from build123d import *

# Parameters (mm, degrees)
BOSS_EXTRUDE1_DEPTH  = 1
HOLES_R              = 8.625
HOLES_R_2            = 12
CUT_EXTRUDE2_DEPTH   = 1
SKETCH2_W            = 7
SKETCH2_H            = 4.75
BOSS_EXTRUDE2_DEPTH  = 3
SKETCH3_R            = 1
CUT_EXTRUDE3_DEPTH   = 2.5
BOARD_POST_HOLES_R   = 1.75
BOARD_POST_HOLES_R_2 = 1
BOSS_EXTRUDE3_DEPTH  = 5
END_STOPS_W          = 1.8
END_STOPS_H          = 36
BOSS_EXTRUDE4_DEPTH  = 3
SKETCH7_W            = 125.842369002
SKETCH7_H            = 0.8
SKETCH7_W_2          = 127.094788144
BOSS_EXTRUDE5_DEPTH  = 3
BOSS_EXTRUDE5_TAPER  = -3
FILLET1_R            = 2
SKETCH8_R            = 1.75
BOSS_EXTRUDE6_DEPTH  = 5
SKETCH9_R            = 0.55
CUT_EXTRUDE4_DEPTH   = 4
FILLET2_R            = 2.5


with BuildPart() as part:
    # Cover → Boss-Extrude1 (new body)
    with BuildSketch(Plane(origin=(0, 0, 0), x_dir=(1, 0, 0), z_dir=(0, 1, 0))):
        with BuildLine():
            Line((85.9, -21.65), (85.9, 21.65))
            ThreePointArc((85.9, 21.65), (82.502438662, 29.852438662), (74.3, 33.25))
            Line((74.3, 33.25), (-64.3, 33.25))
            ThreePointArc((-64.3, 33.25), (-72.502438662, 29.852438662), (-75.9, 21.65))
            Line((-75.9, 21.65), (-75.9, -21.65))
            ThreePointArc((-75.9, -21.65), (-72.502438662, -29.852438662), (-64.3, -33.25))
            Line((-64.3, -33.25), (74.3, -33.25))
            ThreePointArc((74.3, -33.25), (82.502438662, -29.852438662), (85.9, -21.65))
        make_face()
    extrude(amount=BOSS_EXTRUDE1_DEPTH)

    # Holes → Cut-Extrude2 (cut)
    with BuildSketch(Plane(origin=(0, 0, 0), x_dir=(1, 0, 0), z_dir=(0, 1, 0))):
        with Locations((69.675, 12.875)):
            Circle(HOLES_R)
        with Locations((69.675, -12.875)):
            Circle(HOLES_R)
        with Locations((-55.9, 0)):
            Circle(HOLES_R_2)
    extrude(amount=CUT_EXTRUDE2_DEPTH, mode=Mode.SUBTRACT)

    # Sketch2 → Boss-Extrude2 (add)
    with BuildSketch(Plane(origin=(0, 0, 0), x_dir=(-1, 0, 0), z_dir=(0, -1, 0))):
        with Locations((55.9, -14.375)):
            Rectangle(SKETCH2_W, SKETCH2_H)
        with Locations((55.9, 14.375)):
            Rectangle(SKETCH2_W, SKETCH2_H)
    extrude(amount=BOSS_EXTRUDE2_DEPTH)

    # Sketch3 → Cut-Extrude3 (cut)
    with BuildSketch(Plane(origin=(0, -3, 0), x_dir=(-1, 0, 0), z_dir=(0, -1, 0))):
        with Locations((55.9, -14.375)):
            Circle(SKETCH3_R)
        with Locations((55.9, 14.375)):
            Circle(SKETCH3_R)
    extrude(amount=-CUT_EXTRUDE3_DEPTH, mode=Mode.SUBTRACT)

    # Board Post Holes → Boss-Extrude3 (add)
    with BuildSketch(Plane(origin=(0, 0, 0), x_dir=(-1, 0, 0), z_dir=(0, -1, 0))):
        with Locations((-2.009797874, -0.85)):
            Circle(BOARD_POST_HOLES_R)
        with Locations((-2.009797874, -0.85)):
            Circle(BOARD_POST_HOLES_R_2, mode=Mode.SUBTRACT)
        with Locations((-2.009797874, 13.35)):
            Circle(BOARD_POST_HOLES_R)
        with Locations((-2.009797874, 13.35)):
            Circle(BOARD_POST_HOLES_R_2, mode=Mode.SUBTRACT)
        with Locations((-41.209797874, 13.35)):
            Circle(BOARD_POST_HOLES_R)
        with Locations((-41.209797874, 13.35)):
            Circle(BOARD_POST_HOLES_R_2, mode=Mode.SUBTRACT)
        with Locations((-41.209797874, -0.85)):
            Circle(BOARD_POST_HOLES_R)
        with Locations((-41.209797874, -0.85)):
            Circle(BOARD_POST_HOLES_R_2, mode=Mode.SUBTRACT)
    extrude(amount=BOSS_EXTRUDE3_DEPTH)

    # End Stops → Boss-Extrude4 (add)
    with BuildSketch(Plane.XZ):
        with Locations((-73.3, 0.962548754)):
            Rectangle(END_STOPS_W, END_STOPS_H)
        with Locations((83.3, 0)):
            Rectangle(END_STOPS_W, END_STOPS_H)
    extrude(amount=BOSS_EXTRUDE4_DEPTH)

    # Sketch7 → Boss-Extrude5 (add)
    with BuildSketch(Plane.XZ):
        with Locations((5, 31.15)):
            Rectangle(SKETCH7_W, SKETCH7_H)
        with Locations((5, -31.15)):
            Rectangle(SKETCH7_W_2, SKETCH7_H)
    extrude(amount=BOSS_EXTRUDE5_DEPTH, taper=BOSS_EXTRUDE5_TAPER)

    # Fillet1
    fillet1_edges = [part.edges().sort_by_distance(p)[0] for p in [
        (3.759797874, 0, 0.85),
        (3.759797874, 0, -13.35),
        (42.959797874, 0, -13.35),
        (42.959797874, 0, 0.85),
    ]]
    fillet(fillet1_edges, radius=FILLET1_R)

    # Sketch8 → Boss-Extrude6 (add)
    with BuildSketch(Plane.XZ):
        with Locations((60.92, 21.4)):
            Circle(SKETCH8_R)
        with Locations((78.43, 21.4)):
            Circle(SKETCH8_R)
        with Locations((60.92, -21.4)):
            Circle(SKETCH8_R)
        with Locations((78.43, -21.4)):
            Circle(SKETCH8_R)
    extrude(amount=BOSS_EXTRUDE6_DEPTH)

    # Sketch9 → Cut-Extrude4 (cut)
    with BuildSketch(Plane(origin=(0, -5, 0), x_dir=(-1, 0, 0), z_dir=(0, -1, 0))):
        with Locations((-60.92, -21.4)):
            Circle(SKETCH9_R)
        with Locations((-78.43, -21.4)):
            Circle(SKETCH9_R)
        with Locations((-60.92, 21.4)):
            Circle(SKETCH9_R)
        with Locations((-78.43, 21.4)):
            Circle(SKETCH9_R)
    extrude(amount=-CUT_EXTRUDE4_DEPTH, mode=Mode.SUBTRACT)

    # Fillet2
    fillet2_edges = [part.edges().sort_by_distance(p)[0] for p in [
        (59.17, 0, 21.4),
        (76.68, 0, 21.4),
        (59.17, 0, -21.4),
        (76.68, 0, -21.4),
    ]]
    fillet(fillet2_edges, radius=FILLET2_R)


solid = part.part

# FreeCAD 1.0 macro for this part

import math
import FreeCAD as App
import Part
import Sketcher
from FreeCAD import Vector


def edges_at(feature, points):
    """Names of the edges that pass closest to the given points."""
    edges = feature.Shape.Edges
    near = lambda p: min(range(len(edges)), key=lambda i: edges[i].distToShape(Part.Vertex(*p))[0])
    return sorted({f"Edge{near(p) + 1}" for p in points})

doc = App.newDocument("Part")
body = doc.addObject("PartDesign::Body", "Body")

# Sketch on XZ plane
sketch1 = body.newObject("Sketcher::SketchObject", "Sketch")
sketch1.AttachmentSupport = (doc.getObject("XZ_Plane"), [""])
sketch1.MapMode = "FlatFace"
sketch1.addGeometry([
    Part.LineSegment(Vector(86, 22, 0), Vector(86, -22, 0)),  # 0
    Part.ArcOfCircle(Part.Circle(Vector(74, -22, 0), Vector(0, 0, 1), 12), math.radians(-90), math.radians(0)),  # 1
    Part.LineSegment(Vector(74, -33, 0), Vector(-64, -33, 0)),  # 2
    Part.ArcOfCircle(Part.Circle(Vector(-64, -22, 0), Vector(0, 0, 1), 12), math.radians(180), math.radians(270)),  # 3
    Part.LineSegment(Vector(-76, -22, 0), Vector(-76, 22, 0)),  # 4
    Part.ArcOfCircle(Part.Circle(Vector(-64, 22, 0), Vector(0, 0, 1), 12), math.radians(90), math.radians(180)),  # 5
    Part.LineSegment(Vector(-64, 33, 0), Vector(74, 33, 0)),  # 6
    Part.ArcOfCircle(Part.Circle(Vector(74, 22, 0), Vector(0, 0, 1), 12), math.radians(0), math.radians(90)),  # 7
], False)
sketch1.addConstraint([
    Sketcher.Constraint("Tangent", 0, 2, 1, 2),
    Sketcher.Constraint("Tangent", 1, 1, 2, 1),
    Sketcher.Constraint("Tangent", 2, 2, 3, 2),
    Sketcher.Constraint("Tangent", 3, 1, 4, 1),
    Sketcher.Constraint("Tangent", 4, 2, 5, 2),
    Sketcher.Constraint("Tangent", 5, 1, 6, 1),
    Sketcher.Constraint("Tangent", 6, 2, 7, 2),
    Sketcher.Constraint("Tangent", 7, 1, 0, 1),
    Sketcher.Constraint("Vertical", 0),
    Sketcher.Constraint("Horizontal", 2),
    Sketcher.Constraint("Vertical", 4),
    Sketcher.Constraint("Horizontal", 6),
    Sketcher.Constraint("Equal", 1, 3),
    Sketcher.Constraint("Equal", 3, 5),
    Sketcher.Constraint("Equal", 5, 7),
    Sketcher.Constraint("Radius", 1, 11.6),
    Sketcher.Constraint("DistanceX", 2, 2, 2, 1, 138.6),
    Sketcher.Constraint("DistanceY", 0, 2, 0, 1, 43.3),
    Sketcher.Constraint("DistanceX", -1, 1, 1, 3, 74.3),
    Sketcher.Constraint("DistanceY", 1, 3, -1, 1, 21.65),
])
pad1 = body.newObject("PartDesign::Pad", "Pad")
pad1.Profile = sketch1
pad1.Length = 1
pad1.Reversed = True

# Sketch on XZ plane
sketch2 = body.newObject("Sketcher::SketchObject", "Sketch001")
sketch2.AttachmentSupport = (doc.getObject("XZ_Plane"), [""])
sketch2.MapMode = "FlatFace"
sketch2.addGeometry([
    Part.Circle(Vector(70, -13, 0), Vector(0, 0, 1), 9),
    Part.Circle(Vector(70, 13, 0), Vector(0, 0, 1), 9),
    Part.Circle(Vector(-56, 0, 0), Vector(0, 0, 1), 12),
], False)
sketch2.addConstraint([
    Sketcher.Constraint("Equal", 0, 1),
    Sketcher.Constraint("Symmetric", 0, 3, 1, 3, -1),
    Sketcher.Constraint("PointOnObject", 2, 3, -1),
    Sketcher.Constraint("Diameter", 2, 24.0),
    Sketcher.Constraint("Diameter", 0, 17.25),
    Sketcher.Constraint("DistanceX", 2, 3, -1, 1, 55.9),
    Sketcher.Constraint("DistanceY", 0, 3, 1, 3, 25.75),
    Sketcher.Constraint("DistanceX", -1, 1, 0, 3, 69.675),
])
pocket1 = body.newObject("PartDesign::Pocket", "Pocket")
pocket1.Profile = sketch2
pocket1.Length = 1

# Sketch on XZ plane
sketch3 = body.newObject("Sketcher::SketchObject", "Sketch002")
sketch3.AttachmentSupport = (doc.getObject("XZ_Plane"), [""])
sketch3.MapMode = "FlatFace"
sketch3.addGeometry([
    Part.LineSegment(Vector(-52.4, 12, 0), Vector(-52.4, 16.8, 0)),  # 0
    Part.LineSegment(Vector(-52.4, 16.8, 0), Vector(-59.4, 16.8, 0)),  # 1
    Part.LineSegment(Vector(-59.4, 16.8, 0), Vector(-59.4, 12, 0)),  # 2
    Part.LineSegment(Vector(-59.4, 12, 0), Vector(-52.4, 12, 0)),  # 3
    Part.LineSegment(Vector(-52.4, -16.8, 0), Vector(-52.4, -12, 0)),  # 4
    Part.LineSegment(Vector(-52.4, -12, 0), Vector(-59.4, -12, 0)),  # 5
    Part.LineSegment(Vector(-59.4, -12, 0), Vector(-59.4, -16.8, 0)),  # 6
    Part.LineSegment(Vector(-59.4, -16.8, 0), Vector(-52.4, -16.8, 0)),  # 7
], False)
sketch3.addConstraint([
    Sketcher.Constraint("Coincident", 0, 2, 1, 1),
    Sketcher.Constraint("Coincident", 1, 2, 2, 1),
    Sketcher.Constraint("Coincident", 2, 2, 3, 1),
    Sketcher.Constraint("Coincident", 3, 2, 0, 1),
    Sketcher.Constraint("Coincident", 4, 2, 5, 1),
    Sketcher.Constraint("Coincident", 5, 2, 6, 1),
    Sketcher.Constraint("Coincident", 6, 2, 7, 1),
    Sketcher.Constraint("Coincident", 7, 2, 4, 1),
    Sketcher.Constraint("Vertical", 0),
    Sketcher.Constraint("Horizontal", 1),
    Sketcher.Constraint("Vertical", 2),
    Sketcher.Constraint("Horizontal", 3),
    Sketcher.Constraint("Vertical", 4),
    Sketcher.Constraint("Horizontal", 5),
    Sketcher.Constraint("Vertical", 6),
    Sketcher.Constraint("Horizontal", 7),
    Sketcher.Constraint("Symmetric", 3, 2, 4, 2, -1),
    Sketcher.Constraint("Symmetric", 1, 2, 6, 2, -1),
    Sketcher.Constraint("DistanceX", 1, 2, 1, 1, 7.0),
    Sketcher.Constraint("DistanceY", -1, 1, 2, 2, 12.0),
    Sketcher.Constraint("DistanceY", 0, 1, 0, 2, 4.75),
    Sketcher.Constraint("DistanceX", 0, 2, -1, 1, 52.4),
])
pad2 = body.newObject("PartDesign::Pad", "Pad001")
pad2.Profile = sketch3
pad2.Length = 3

# Sketch on XZ plane
sketch4 = body.newObject("Sketcher::SketchObject", "Sketch003")
sketch4.AttachmentSupport = (doc.getObject("XZ_Plane"), [""])
sketch4.MapMode = "FlatFace"
sketch4.AttachmentOffset = App.Placement(Vector(0, 0, 3), App.Rotation())
sketch4.addGeometry([
    Part.Circle(Vector(-55.9, 14.4, 0), Vector(0, 0, 1), 1),
    Part.Circle(Vector(-55.9, -14.4, 0), Vector(0, 0, 1), 1),
], False)
sketch4.addConstraint([
    Sketcher.Constraint("Equal", 0, 1),
    Sketcher.Constraint("Symmetric", 0, 3, 1, 3, -1),
    Sketcher.Constraint("Diameter", 0, 2.0),
    Sketcher.Constraint("DistanceX", 0, 3, -1, 1, 55.9),
    Sketcher.Constraint("DistanceY", 1, 3, 0, 3, 28.75),
])
pocket2 = body.newObject("PartDesign::Pocket", "Pocket001")
pocket2.Profile = sketch4
pocket2.Length = 2.5

# Sketch on XZ plane
sketch5 = body.newObject("Sketcher::SketchObject", "Sketch004")
sketch5.AttachmentSupport = (doc.getObject("XZ_Plane"), [""])
sketch5.MapMode = "FlatFace"
sketch5.addGeometry([
    Part.Circle(Vector(2, 0.8, 0), Vector(0, 0, 1), 1.8),  # 0
    Part.Circle(Vector(2, 0.8, 0), Vector(0, 0, 1), 1),  # 1
    Part.Circle(Vector(2, -13.3, 0), Vector(0, 0, 1), 1.8),  # 2
    Part.Circle(Vector(2, -13.3, 0), Vector(0, 0, 1), 1),  # 3
    Part.Circle(Vector(41.2, -13.3, 0), Vector(0, 0, 1), 1.8),  # 4
    Part.Circle(Vector(41.2, -13.3, 0), Vector(0, 0, 1), 1),  # 5
    Part.Circle(Vector(41.2, 0.8, 0), Vector(0, 0, 1), 1.8),  # 6
    Part.Circle(Vector(41.2, 0.8, 0), Vector(0, 0, 1), 1),  # 7
], False)
sketch5.addConstraint([
    Sketcher.Constraint("Coincident", 1, 3, 0, 3),
    Sketcher.Constraint("Coincident", 3, 3, 2, 3),
    Sketcher.Constraint("Coincident", 5, 3, 4, 3),
    Sketcher.Constraint("Coincident", 7, 3, 6, 3),
    Sketcher.Constraint("Equal", 0, 2),
    Sketcher.Constraint("Equal", 1, 3),
    Sketcher.Constraint("Equal", 2, 4),
    Sketcher.Constraint("Equal", 3, 5),
    Sketcher.Constraint("Equal", 4, 6),
    Sketcher.Constraint("Equal", 5, 7),
    Sketcher.Constraint("Horizontal", 3, 3, 4, 3),
    Sketcher.Constraint("Horizontal", 1, 3, 6, 3),
    Sketcher.Constraint("Vertical", 1, 3, 2, 3),
    Sketcher.Constraint("Vertical", 5, 3, 6, 3),
    Sketcher.Constraint("Diameter", 1, 2.0),
    Sketcher.Constraint("Diameter", 0, 3.5),
    Sketcher.Constraint("DistanceY", 2, 3, 0, 3, 14.2),
    Sketcher.Constraint("DistanceX", 2, 3, 4, 3, 39.2),
    Sketcher.Constraint("DistanceY", -1, 1, 0, 3, 0.85),
    Sketcher.Constraint("DistanceX", -1, 1, 0, 3, 2.009798),
])
pad3 = body.newObject("PartDesign::Pad", "Pad002")
pad3.Profile = sketch5
pad3.Length = 5

# Sketch on XZ plane
sketch6 = body.newObject("Sketcher::SketchObject", "Sketch005")
sketch6.AttachmentSupport = (doc.getObject("XZ_Plane"), [""])
sketch6.MapMode = "FlatFace"
sketch6.addGeometry([
    Part.LineSegment(Vector(-74.2, 19, 0), Vector(-74.2, -17, 0)),  # 0
    Part.LineSegment(Vector(-74.2, -17, 0), Vector(-72.4, -17, 0)),  # 1
    Part.LineSegment(Vector(-72.4, -17, 0), Vector(-72.4, 19, 0)),  # 2
    Part.LineSegment(Vector(-72.4, 19, 0), Vector(-74.2, 19, 0)),  # 3
    Part.LineSegment(Vector(82.4, 18, 0), Vector(82.4, -18, 0)),  # 4
    Part.LineSegment(Vector(82.4, -18, 0), Vector(84.2, -18, 0)),  # 5
    Part.LineSegment(Vector(84.2, -18, 0), Vector(84.2, 18, 0)),  # 6
    Part.LineSegment(Vector(84.2, 18, 0), Vector(82.4, 18, 0)),  # 7
], False)
sketch6.addConstraint([
    Sketcher.Constraint("Coincident", 0, 2, 1, 1),
    Sketcher.Constraint("Coincident", 1, 2, 2, 1),
    Sketcher.Constraint("Coincident", 2, 2, 3, 1),
    Sketcher.Constraint("Coincident", 3, 2, 0, 1),
    Sketcher.Constraint("Coincident", 4, 2, 5, 1),
    Sketcher.Constraint("Coincident", 5, 2, 6, 1),
    Sketcher.Constraint("Coincident", 6, 2, 7, 1),
    Sketcher.Constraint("Coincident", 7, 2, 4, 1),
    Sketcher.Constraint("Vertical", 0),
    Sketcher.Constraint("Horizontal", 1),
    Sketcher.Constraint("Vertical", 2),
    Sketcher.Constraint("Horizontal", 3),
    Sketcher.Constraint("Vertical", 4),
    Sketcher.Constraint("Horizontal", 5),
    Sketcher.Constraint("Vertical", 6),
    Sketcher.Constraint("Horizontal", 7),
    Sketcher.Constraint("Equal", 3, 5),
    Sketcher.Constraint("Equal", 2, 4),
    Sketcher.Constraint("DistanceY", 0, 2, 0, 1, 36.0),
    Sketcher.Constraint("DistanceX", 1, 1, 1, 2, 1.8),
    Sketcher.Constraint("DistanceY", 4, 2, -1, 1, 18.0),
    Sketcher.Constraint("DistanceX", 0, 2, -1, 1, 74.2),
    Sketcher.Constraint("DistanceX", -1, 1, 4, 2, 82.4),
    Sketcher.Constraint("DistanceY", 0, 2, -1, 1, 17.037451),
])
pad4 = body.newObject("PartDesign::Pad", "Pad003")
pad4.Profile = sketch6
pad4.Length = 3

# Sketch on XZ plane
sketch7 = body.newObject("Sketcher::SketchObject", "Sketch006")
sketch7.AttachmentSupport = (doc.getObject("XZ_Plane"), [""])
sketch7.MapMode = "FlatFace"
sketch7.addGeometry([
    Part.LineSegment(Vector(-57.9, 31.6, 0), Vector(-57.9, 30.8, 0)),  # 0
    Part.LineSegment(Vector(-57.9, 30.8, 0), Vector(67.9, 30.8, 0)),  # 1
    Part.LineSegment(Vector(67.9, 30.8, 0), Vector(67.9, 31.6, 0)),  # 2
    Part.LineSegment(Vector(67.9, 31.6, 0), Vector(-57.9, 31.6, 0)),  # 3
    Part.LineSegment(Vector(-58.5, -30.8, 0), Vector(-58.5, -31.6, 0)),  # 4
    Part.LineSegment(Vector(-58.5, -31.6, 0), Vector(68.5, -31.6, 0)),  # 5
    Part.LineSegment(Vector(68.5, -31.6, 0), Vector(68.5, -30.8, 0)),  # 6
    Part.LineSegment(Vector(68.5, -30.8, 0), Vector(-58.5, -30.8, 0)),  # 7
], False)
sketch7.addConstraint([
    Sketcher.Constraint("Coincident", 0, 2, 1, 1),
    Sketcher.Constraint("Coincident", 1, 2, 2, 1),
    Sketcher.Constraint("Coincident", 2, 2, 3, 1),
    Sketcher.Constraint("Coincident", 3, 2, 0, 1),
    Sketcher.Constraint("Coincident", 4, 2, 5, 1),
    Sketcher.Constraint("Coincident", 5, 2, 6, 1),
    Sketcher.Constraint("Coincident", 6, 2, 7, 1),
    Sketcher.Constraint("Coincident", 7, 2, 4, 1),
    Sketcher.Constraint("Vertical", 0),
    Sketcher.Constraint("Horizontal", 1),
    Sketcher.Constraint("Vertical", 2),
    Sketcher.Constraint("Horizontal", 3),
    Sketcher.Constraint("Vertical", 4),
    Sketcher.Constraint("Horizontal", 5),
    Sketcher.Constraint("Vertical", 6),
    Sketcher.Constraint("Horizontal", 7),
    Sketcher.Constraint("Equal", 2, 4),
    Sketcher.Constraint("DistanceY", 0, 2, 0, 1, 0.8),
    Sketcher.Constraint("DistanceY", 4, 2, 0, 2, 62.3),
    Sketcher.Constraint("DistanceY", -1, 1, 0, 2, 30.75),
    Sketcher.Constraint("DistanceX", 1, 1, 1, 2, 125.842369),
    Sketcher.Constraint("DistanceX", 5, 1, 5, 2, 127.094788),
    Sketcher.Constraint("DistanceX", 4, 2, 0, 2, 0.62621),
    Sketcher.Constraint("DistanceX", 0, 2, -1, 1, 57.921185),
])
pad5 = body.newObject("PartDesign::Pad", "Pad004")
pad5.Profile = sketch7
pad5.Length = 3
pad5.TaperAngle = 3
doc.recompute()

fillet = body.newObject("PartDesign::Fillet", "Fillet")
fillet.Base = (pad5, edges_at(pad5, [
    (3.76, 0, 0.85),
    (3.76, 0, -13.35),
    (42.96, 0, -13.35),
    (42.96, 0, 0.85),
]))
fillet.Radius = 2

# Sketch on XZ plane
sketch8 = body.newObject("Sketcher::SketchObject", "Sketch007")
sketch8.AttachmentSupport = (doc.getObject("XZ_Plane"), [""])
sketch8.MapMode = "FlatFace"
sketch8.addGeometry([
    Part.Circle(Vector(60.9, 21.4, 0), Vector(0, 0, 1), 1.8),
    Part.Circle(Vector(78.4, 21.4, 0), Vector(0, 0, 1), 1.8),
    Part.Circle(Vector(60.9, -21.4, 0), Vector(0, 0, 1), 1.8),
    Part.Circle(Vector(78.4, -21.4, 0), Vector(0, 0, 1), 1.8),
], False)
sketch8.addConstraint([
    Sketcher.Constraint("Equal", 0, 1),
    Sketcher.Constraint("Equal", 1, 2),
    Sketcher.Constraint("Equal", 2, 3),
    Sketcher.Constraint("Symmetric", 0, 3, 2, 3, -1),
    Sketcher.Constraint("Symmetric", 1, 3, 3, 3, -1),
    Sketcher.Constraint("Horizontal", 0, 3, 1, 3),
    Sketcher.Constraint("Diameter", 0, 3.5),
    Sketcher.Constraint("DistanceY", -1, 1, 0, 3, 21.4),
    Sketcher.Constraint("DistanceX", -1, 1, 0, 3, 60.92),
    Sketcher.Constraint("DistanceX", -1, 1, 1, 3, 78.43),
])
pad6 = body.newObject("PartDesign::Pad", "Pad005")
pad6.Profile = sketch8
pad6.Length = 5

# Sketch on XZ plane
sketch9 = body.newObject("Sketcher::SketchObject", "Sketch008")
sketch9.AttachmentSupport = (doc.getObject("XZ_Plane"), [""])
sketch9.MapMode = "FlatFace"
sketch9.AttachmentOffset = App.Placement(Vector(0, 0, 5), App.Rotation())
sketch9.addGeometry([
    Part.Circle(Vector(60.9, 21.4, 0), Vector(0, 0, 1), 0.6),
    Part.Circle(Vector(78.4, 21.4, 0), Vector(0, 0, 1), 0.6),
    Part.Circle(Vector(60.9, -21.4, 0), Vector(0, 0, 1), 0.6),
    Part.Circle(Vector(78.4, -21.4, 0), Vector(0, 0, 1), 0.6),
], False)
sketch9.addConstraint([
    Sketcher.Constraint("Equal", 0, 1),
    Sketcher.Constraint("Equal", 1, 2),
    Sketcher.Constraint("Equal", 2, 3),
    Sketcher.Constraint("Symmetric", 0, 3, 2, 3, -1),
    Sketcher.Constraint("Symmetric", 1, 3, 3, 3, -1),
    Sketcher.Constraint("Horizontal", 0, 3, 1, 3),
    Sketcher.Constraint("Diameter", 0, 1.1),
    Sketcher.Constraint("DistanceY", -1, 1, 0, 3, 21.4),
    Sketcher.Constraint("DistanceX", -1, 1, 0, 3, 60.92),
    Sketcher.Constraint("DistanceX", -1, 1, 1, 3, 78.43),
])
pocket3 = body.newObject("PartDesign::Pocket", "Pocket002")
pocket3.Profile = sketch9
pocket3.Length = 4
doc.recompute()

fillet2 = body.newObject("PartDesign::Fillet", "Fillet001")
fillet2.Base = (pocket3, edges_at(pocket3, [
    (59.17, 0, 21.4),
    (76.68, 0, 21.4),
    (59.17, 0, -21.4),
    (76.68, 0, -21.4),
]))
fillet2.Radius = 2.5

doc.recompute()
